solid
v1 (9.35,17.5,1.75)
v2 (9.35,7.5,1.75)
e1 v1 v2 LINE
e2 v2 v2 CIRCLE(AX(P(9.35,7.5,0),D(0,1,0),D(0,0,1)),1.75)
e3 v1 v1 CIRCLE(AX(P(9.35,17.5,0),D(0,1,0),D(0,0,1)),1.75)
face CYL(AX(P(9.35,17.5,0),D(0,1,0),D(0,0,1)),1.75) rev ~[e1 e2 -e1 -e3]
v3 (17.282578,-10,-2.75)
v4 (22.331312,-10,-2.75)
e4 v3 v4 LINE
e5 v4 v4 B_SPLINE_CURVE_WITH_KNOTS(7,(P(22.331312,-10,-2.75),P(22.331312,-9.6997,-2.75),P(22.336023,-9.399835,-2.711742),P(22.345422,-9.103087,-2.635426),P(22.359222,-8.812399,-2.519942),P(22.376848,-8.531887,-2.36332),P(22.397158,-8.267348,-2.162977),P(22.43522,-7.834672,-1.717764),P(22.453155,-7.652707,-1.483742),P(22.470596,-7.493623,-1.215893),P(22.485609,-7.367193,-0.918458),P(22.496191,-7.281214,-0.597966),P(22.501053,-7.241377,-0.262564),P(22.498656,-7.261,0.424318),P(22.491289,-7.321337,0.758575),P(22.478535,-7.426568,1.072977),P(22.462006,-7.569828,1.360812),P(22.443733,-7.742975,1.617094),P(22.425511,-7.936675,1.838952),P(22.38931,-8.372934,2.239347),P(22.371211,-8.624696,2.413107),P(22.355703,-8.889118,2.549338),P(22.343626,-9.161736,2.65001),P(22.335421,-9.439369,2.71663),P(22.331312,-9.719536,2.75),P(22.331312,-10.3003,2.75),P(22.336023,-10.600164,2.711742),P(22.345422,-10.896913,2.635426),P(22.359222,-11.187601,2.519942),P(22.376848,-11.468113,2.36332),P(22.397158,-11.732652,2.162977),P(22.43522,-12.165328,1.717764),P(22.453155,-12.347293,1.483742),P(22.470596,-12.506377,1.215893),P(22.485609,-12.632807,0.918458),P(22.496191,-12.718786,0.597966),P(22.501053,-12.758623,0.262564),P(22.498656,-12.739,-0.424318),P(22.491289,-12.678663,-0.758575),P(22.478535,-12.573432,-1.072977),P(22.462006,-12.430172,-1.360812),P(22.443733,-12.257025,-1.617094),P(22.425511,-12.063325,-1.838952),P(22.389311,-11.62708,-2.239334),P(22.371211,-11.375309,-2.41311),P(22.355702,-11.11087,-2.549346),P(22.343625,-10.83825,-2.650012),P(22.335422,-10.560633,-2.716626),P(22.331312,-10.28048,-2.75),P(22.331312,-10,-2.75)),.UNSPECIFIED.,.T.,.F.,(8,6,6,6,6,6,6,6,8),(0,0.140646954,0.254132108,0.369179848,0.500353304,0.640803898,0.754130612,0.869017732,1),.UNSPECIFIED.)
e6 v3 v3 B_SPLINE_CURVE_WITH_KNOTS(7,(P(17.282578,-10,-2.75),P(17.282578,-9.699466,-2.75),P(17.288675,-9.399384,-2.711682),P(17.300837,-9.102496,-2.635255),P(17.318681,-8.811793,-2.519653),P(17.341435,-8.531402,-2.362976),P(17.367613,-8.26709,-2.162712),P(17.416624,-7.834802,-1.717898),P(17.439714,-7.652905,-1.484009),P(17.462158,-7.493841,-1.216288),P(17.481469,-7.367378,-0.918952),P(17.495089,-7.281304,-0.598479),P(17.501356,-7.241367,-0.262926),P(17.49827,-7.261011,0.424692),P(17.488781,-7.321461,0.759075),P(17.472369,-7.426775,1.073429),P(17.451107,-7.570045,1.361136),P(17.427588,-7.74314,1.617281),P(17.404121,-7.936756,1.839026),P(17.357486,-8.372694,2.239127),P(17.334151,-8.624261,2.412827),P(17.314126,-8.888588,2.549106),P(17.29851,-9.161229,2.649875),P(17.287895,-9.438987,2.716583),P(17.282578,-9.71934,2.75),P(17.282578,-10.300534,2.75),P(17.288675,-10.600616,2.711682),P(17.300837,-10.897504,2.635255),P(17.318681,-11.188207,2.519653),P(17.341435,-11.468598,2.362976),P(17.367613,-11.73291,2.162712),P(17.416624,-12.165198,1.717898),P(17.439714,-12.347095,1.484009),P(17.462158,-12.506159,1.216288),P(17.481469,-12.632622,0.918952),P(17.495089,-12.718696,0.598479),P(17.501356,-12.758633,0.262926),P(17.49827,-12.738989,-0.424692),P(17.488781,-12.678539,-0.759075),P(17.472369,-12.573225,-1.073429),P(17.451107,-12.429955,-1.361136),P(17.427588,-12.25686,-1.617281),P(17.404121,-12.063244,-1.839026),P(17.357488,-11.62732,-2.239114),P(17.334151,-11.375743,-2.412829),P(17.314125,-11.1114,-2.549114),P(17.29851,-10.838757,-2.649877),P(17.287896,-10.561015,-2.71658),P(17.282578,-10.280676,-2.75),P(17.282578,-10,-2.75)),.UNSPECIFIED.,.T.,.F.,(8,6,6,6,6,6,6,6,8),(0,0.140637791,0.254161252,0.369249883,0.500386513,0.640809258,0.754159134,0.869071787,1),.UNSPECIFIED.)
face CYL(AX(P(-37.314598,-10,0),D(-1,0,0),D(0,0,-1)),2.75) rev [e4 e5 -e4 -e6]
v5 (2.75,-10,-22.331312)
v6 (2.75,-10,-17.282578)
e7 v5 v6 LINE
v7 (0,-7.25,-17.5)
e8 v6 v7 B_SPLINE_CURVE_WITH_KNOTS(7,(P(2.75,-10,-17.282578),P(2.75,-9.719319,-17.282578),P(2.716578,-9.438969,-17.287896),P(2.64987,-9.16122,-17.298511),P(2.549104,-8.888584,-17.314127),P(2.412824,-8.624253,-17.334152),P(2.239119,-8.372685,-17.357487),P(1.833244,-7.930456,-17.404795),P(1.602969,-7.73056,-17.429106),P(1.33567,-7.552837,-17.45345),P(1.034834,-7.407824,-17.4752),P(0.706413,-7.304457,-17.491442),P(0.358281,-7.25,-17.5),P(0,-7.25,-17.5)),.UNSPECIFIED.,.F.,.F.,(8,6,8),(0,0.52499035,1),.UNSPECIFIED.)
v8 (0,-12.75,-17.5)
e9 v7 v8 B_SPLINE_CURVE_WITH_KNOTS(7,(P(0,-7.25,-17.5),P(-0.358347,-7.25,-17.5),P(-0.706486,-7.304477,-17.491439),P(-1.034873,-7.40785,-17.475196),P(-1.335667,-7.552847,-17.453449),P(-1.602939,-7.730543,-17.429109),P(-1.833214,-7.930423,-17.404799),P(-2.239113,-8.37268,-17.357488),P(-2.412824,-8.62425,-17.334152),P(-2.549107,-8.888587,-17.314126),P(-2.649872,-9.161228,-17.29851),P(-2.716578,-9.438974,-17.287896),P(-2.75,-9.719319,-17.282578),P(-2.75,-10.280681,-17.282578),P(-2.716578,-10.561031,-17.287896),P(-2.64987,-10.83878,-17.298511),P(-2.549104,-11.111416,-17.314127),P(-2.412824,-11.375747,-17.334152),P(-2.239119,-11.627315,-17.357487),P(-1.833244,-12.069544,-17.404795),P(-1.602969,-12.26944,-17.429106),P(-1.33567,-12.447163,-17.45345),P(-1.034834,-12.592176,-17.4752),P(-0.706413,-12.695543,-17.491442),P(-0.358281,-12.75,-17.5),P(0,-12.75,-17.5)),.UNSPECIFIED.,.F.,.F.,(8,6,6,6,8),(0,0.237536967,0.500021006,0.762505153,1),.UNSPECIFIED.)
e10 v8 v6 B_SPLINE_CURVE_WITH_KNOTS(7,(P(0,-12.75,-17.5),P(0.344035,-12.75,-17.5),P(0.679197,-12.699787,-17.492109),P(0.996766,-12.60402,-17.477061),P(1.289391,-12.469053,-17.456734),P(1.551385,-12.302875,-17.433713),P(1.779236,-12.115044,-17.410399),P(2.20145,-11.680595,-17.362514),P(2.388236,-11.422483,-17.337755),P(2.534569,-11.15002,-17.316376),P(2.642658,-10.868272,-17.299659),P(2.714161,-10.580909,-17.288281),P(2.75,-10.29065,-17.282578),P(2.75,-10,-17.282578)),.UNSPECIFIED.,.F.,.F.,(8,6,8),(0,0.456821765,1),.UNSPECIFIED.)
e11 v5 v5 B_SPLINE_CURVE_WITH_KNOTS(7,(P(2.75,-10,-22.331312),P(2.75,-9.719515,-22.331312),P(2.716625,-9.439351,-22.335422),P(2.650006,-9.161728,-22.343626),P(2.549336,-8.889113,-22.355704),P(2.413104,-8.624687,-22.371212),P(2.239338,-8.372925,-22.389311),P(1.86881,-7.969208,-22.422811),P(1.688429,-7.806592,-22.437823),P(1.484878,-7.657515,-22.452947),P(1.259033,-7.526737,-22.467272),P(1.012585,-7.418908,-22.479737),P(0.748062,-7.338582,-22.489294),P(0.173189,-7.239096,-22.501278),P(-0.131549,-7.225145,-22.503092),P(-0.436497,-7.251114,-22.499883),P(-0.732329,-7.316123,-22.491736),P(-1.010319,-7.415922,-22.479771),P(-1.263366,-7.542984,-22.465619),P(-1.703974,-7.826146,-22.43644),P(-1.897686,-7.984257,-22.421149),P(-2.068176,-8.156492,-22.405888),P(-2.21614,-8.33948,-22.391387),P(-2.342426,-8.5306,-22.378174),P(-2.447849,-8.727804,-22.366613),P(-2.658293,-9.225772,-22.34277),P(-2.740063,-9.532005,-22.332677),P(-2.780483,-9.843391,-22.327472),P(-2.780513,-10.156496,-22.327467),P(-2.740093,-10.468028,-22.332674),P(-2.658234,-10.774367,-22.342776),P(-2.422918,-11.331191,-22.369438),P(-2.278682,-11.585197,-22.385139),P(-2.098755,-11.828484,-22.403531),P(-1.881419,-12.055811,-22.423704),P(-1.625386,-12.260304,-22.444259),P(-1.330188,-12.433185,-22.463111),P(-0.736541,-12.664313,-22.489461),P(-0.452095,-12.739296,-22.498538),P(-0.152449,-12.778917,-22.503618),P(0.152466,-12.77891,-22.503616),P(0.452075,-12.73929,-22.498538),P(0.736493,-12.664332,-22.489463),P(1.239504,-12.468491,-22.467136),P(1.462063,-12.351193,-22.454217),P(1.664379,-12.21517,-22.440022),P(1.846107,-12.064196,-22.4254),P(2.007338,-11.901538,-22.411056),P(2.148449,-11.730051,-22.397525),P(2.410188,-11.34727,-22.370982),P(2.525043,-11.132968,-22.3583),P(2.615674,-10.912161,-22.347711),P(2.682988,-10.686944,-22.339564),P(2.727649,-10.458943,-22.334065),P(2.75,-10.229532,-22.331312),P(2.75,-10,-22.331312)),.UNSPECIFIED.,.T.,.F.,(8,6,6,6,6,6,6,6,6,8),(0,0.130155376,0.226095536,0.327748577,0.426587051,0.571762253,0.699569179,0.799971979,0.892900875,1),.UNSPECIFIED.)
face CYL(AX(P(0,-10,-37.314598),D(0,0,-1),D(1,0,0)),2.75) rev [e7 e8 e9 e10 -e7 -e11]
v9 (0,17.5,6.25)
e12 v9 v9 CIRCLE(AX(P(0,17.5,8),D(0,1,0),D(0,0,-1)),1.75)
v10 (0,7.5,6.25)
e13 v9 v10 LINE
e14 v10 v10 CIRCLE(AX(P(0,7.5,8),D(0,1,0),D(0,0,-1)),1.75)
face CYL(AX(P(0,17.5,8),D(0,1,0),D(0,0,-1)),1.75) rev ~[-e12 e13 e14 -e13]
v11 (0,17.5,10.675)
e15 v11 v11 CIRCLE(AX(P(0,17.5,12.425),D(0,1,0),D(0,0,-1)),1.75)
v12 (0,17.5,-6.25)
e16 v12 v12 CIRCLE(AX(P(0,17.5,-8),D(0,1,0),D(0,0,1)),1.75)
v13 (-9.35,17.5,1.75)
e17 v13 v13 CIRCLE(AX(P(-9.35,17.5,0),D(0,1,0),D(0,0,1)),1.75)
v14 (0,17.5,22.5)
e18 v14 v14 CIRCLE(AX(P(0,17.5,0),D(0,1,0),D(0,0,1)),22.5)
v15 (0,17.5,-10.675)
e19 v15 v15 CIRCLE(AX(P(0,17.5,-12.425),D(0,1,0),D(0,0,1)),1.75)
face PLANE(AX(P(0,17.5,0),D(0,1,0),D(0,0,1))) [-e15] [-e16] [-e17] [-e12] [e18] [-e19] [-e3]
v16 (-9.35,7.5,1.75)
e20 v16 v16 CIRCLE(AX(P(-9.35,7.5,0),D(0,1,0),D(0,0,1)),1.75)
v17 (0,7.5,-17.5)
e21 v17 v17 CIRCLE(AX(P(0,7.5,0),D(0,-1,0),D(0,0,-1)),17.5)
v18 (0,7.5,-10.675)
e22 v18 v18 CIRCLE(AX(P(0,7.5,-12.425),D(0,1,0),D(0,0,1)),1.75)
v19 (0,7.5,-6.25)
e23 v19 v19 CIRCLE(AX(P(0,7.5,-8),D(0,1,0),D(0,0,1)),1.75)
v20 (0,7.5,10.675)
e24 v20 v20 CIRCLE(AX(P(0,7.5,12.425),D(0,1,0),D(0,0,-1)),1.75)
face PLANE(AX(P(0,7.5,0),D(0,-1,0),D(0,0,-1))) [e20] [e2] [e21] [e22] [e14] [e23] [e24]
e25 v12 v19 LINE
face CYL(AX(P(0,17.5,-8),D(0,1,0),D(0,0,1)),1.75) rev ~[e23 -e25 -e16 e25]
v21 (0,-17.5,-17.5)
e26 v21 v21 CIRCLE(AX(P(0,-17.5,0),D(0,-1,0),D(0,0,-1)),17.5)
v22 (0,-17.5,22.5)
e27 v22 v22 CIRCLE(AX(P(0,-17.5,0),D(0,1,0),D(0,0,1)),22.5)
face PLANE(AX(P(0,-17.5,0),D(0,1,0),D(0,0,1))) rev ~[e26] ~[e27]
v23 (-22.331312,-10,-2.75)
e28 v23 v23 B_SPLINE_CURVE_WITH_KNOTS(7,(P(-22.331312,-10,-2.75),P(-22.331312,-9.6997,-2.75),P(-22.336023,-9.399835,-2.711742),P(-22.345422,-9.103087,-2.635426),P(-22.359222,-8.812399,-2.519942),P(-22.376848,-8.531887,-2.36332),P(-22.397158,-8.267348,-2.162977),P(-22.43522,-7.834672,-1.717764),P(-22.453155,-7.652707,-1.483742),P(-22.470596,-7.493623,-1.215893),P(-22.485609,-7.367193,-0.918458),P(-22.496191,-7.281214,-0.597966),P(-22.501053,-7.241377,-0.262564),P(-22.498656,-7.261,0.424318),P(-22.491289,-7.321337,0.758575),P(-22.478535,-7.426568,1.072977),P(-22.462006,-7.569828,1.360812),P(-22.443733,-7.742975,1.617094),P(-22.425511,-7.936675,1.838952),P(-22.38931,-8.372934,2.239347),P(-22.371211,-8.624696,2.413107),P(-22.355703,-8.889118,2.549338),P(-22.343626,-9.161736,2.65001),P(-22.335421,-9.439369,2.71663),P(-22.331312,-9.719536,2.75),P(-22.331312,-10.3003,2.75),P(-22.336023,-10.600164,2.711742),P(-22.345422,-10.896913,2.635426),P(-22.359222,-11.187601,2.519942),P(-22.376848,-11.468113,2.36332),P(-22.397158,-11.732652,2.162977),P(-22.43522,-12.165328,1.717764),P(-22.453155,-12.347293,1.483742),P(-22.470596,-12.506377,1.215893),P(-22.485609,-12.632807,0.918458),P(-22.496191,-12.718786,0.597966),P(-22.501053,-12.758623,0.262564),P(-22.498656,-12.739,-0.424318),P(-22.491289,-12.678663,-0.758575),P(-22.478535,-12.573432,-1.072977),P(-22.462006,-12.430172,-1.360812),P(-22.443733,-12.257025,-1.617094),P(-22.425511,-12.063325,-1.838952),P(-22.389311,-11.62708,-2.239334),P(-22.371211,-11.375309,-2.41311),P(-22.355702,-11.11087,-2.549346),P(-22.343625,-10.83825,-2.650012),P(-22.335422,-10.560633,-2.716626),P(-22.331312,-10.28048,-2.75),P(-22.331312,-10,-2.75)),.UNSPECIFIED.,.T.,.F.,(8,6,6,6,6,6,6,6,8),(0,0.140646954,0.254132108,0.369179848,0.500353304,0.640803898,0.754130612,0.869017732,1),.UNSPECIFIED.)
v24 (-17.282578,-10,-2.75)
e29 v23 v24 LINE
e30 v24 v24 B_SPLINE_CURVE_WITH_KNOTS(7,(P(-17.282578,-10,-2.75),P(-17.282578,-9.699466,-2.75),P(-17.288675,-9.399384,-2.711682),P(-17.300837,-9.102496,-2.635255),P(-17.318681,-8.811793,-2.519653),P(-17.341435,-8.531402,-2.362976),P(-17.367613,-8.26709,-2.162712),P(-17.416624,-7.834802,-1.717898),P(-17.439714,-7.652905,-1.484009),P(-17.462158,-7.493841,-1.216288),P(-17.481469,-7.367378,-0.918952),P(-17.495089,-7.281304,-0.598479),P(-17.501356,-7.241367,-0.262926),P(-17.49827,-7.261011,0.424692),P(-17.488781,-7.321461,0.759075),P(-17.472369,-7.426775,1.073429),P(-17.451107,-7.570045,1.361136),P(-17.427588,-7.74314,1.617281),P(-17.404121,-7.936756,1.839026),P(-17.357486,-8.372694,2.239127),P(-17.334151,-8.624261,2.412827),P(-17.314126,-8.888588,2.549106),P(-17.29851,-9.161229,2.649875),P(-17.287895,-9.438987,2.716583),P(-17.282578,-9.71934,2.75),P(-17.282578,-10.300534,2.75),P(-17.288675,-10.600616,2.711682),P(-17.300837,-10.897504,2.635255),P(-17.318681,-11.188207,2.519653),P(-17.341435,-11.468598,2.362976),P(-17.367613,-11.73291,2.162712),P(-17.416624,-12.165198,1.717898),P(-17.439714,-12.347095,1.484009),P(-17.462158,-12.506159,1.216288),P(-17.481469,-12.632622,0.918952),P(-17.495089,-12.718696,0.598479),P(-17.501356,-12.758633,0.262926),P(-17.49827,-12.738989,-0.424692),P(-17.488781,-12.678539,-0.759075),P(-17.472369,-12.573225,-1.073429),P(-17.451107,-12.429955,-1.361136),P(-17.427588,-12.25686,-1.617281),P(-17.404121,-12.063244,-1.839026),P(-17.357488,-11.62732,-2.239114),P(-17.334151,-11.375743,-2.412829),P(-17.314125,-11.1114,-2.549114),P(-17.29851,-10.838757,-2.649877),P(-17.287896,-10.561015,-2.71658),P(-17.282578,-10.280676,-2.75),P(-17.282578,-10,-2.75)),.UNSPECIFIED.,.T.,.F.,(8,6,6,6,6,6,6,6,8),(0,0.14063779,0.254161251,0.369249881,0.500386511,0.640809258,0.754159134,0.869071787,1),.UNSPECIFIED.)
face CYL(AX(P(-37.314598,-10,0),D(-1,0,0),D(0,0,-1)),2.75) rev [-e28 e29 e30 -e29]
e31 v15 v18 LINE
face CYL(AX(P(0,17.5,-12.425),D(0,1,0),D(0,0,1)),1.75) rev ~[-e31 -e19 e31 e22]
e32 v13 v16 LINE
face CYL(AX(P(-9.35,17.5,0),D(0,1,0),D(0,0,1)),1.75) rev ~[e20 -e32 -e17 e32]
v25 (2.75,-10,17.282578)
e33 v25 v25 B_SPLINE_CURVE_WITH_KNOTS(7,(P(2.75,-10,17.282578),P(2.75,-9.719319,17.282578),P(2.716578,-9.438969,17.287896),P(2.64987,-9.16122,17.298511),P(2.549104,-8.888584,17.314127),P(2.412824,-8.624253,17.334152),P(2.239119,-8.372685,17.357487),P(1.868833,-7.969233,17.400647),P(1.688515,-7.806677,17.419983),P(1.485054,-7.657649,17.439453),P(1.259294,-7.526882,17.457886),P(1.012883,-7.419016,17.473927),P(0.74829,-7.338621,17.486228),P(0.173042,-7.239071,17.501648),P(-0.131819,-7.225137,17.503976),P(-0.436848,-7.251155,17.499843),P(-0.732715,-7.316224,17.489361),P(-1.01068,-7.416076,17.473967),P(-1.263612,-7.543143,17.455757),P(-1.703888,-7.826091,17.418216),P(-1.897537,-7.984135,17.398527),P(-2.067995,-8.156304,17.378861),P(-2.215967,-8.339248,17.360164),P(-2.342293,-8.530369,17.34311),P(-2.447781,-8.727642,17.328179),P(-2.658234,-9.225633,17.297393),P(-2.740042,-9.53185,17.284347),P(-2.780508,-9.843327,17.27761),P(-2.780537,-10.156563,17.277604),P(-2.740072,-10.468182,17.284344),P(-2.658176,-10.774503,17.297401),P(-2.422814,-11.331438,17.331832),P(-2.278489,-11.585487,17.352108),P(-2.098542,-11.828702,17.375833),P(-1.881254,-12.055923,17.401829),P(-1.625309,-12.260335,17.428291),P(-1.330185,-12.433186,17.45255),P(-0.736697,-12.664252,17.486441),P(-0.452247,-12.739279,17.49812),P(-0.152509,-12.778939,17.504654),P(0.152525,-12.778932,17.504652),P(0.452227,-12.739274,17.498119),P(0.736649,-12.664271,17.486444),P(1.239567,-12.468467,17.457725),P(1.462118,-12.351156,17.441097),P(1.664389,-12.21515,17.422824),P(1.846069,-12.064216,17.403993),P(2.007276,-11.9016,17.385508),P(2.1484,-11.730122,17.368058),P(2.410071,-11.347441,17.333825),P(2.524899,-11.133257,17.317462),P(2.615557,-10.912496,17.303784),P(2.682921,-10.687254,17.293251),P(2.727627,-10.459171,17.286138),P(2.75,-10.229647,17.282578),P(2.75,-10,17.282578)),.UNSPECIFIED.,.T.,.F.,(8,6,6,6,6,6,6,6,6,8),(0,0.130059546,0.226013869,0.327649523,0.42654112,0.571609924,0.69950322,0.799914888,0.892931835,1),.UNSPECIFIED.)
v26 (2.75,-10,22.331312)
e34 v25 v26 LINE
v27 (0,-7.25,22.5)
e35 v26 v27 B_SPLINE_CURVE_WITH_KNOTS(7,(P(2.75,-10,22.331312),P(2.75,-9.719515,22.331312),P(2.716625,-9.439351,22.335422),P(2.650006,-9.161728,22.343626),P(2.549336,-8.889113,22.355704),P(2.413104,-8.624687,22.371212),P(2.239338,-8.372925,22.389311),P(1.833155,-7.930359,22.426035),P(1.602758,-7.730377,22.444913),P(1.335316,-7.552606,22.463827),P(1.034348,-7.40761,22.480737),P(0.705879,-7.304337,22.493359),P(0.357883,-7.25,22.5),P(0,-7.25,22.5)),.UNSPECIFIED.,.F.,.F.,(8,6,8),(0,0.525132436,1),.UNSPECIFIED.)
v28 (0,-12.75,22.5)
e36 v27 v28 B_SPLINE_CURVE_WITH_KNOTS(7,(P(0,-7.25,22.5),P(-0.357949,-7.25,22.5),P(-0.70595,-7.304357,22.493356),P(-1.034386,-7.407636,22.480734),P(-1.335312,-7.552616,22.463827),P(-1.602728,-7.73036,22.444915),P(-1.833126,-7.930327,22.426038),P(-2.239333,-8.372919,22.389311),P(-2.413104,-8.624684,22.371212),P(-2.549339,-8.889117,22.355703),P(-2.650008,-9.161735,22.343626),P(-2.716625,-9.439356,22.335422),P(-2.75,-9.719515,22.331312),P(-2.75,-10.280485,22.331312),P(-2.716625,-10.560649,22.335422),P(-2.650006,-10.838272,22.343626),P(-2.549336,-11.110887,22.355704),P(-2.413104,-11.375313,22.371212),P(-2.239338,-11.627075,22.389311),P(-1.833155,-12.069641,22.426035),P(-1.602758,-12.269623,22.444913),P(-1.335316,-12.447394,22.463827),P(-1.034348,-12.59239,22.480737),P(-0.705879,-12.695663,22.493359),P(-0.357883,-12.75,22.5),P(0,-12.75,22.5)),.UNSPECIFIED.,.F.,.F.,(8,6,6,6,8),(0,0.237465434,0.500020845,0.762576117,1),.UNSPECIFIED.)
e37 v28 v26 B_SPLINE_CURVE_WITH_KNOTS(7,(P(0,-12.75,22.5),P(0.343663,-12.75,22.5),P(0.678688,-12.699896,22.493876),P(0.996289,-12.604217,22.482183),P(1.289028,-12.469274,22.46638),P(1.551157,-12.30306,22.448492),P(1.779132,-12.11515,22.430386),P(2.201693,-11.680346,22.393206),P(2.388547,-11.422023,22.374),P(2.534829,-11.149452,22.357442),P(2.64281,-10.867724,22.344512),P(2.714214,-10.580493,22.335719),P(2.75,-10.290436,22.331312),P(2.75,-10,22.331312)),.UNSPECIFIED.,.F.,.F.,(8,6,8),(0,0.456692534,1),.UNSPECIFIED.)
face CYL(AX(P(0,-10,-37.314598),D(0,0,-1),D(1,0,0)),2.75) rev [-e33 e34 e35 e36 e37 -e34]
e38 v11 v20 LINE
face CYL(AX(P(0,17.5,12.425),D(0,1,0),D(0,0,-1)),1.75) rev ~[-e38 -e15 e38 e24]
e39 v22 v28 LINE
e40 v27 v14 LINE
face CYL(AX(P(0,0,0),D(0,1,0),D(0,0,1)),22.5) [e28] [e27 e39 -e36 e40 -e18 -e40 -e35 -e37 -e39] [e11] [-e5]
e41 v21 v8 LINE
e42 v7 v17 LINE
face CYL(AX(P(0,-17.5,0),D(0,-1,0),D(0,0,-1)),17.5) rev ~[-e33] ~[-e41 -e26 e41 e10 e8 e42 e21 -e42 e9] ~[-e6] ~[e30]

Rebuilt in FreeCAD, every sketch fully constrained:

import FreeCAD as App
import Part
import Sketcher
Q = App.Units.Quantity

doc = App.newDocument("Part")
body = doc.addObject("PartDesign::Body", "Body")

sketch1 = body.newObject("Sketcher::SketchObject", "Sketch")
sketch1.AttachmentSupport = (doc.getObject("XZ_Plane"), [""])
sketch1.MapMode = "FlatFace"
sketch1.addGeometry(Part.Circle(App.Vector(0, 0, 0), App.Vector(0, 0, 1), 22.5), False)
sketch1.addConstraint([
    Sketcher.Constraint("Coincident", 0, 3, -1, 1),
    Sketcher.Constraint("Diameter", 0, Q("45 mm")),
])
pad1 = body.newObject("PartDesign::Pad", "Pad")
pad1.Profile = sketch1
pad1.Length = 35
pad1.Midplane = True

sketch2 = body.newObject("Sketcher::SketchObject", "Sketch001")
sketch2.AttachmentSupport = (doc.getObject("XZ_Plane"), [""])
sketch2.MapMode = "FlatFace"
sketch2.AttachmentOffset = App.Placement(App.Vector(0, 0, 17.5), App.Rotation())
sketch2.addGeometry(Part.Circle(App.Vector(0, 0, 0), App.Vector(0, 0, 1), 17.5), False)
sketch2.addConstraint([
    Sketcher.Constraint("Coincident", 0, 3, -1, 1),
    Sketcher.Constraint("Diameter", 0, Q("35 mm")),
])
pocket1 = body.newObject("PartDesign::Pocket", "Pocket")
pocket1.Profile = sketch2
pocket1.Length = 25

sketch3 = body.newObject("Sketcher::SketchObject", "Sketch002")
sketch3.AttachmentSupport = (doc.getObject("YZ_Plane"), [""])
sketch3.MapMode = "FlatFace"
sketch3.addGeometry(Part.Circle(App.Vector(-10, 0, 0), App.Vector(0, 0, 1), 2.75), False)
sketch3.addConstraint([
    Sketcher.Constraint("PointOnObject", 0, 3, -1),
    Sketcher.Constraint("Diameter", 0, Q("5.5 mm")),
    Sketcher.Constraint("DistanceX", 0, 3, -1, 1, Q("10 mm")),
])
pocket2 = body.newObject("PartDesign::Pocket", "Pocket001")
pocket2.Profile = sketch3
pocket2.Type = "ThroughAll"
pocket2.Midplane = True

sketch4 = body.newObject("Sketcher::SketchObject", "Sketch003")
sketch4.AttachmentSupport = (doc.getObject("XY_Plane"), [""])
sketch4.MapMode = "FlatFace"
sketch4.addGeometry(Part.Circle(App.Vector(0, -10, 0), App.Vector(0, 0, 1), 2.75), False)
sketch4.addConstraint([
    Sketcher.Constraint("PointOnObject", 0, 3, -2),
    Sketcher.Constraint("Diameter", 0, Q("5.5 mm")),
    Sketcher.Constraint("DistanceY", 0, 3, -1, 1, Q("10 mm")),
])
pocket3 = body.newObject("PartDesign::Pocket", "Pocket002")
pocket3.Profile = sketch4
pocket3.Type = "ThroughAll"
pocket3.Midplane = True

sketch5 = body.newObject("Sketcher::SketchObject", "Sketch004")
sketch5.AttachmentSupport = (doc.getObject("XZ_Plane"), [""])
sketch5.MapMode = "FlatFace"
sketch5.AttachmentOffset = App.Placement(App.Vector(0, 0, -17.5), App.Rotation())
sketch5.addGeometry([
    Part.Circle(App.Vector(0, -12.425, 0), App.Vector(0, 0, 1), 1.75),
    Part.Circle(App.Vector(0, -8, 0), App.Vector(0, 0, 1), 1.75),
    Part.Circle(App.Vector(0, 8, 0), App.Vector(0, 0, 1), 1.75),
    Part.Circle(App.Vector(0, 12.425, 0), App.Vector(0, 0, 1), 1.75),
    Part.Circle(App.Vector(-9.35, 0, 0), App.Vector(0, 0, 1), 1.75),
    Part.Circle(App.Vector(9.35, 0, 0), App.Vector(0, 0, 1), 1.75),
], False)
sketch5.addConstraint([
    Sketcher.Constraint("Equal", 0, 1),
    Sketcher.Constraint("Equal", 1, 2),
    Sketcher.Constraint("Equal", 2, 3),
    Sketcher.Constraint("Equal", 3, 4),
    Sketcher.Constraint("Equal", 4, 5),
    Sketcher.Constraint("Symmetric", 1, 3, 2, 3, -1, 1),
    Sketcher.Constraint("Symmetric", 0, 3, 3, 3, -1, 1),
    Sketcher.Constraint("Symmetric", 4, 3, 5, 3, -1, 1),
    Sketcher.Constraint("PointOnObject", 0, 3, -2),
    Sketcher.Constraint("PointOnObject", 1, 3, -2),
    Sketcher.Constraint("PointOnObject", 4, 3, -1),
    Sketcher.Constraint("Diameter", 0, Q("3.5 mm")),
    Sketcher.Constraint("DistanceY", 1, 3, -1, 1, Q("8 mm")),
    Sketcher.Constraint("DistanceX", 4, 3, 5, 3, Q("18.7 mm")),
    Sketcher.Constraint("DistanceY", 0, 3, 3, 3, Q("24.85 mm")),
])
pocket4 = body.newObject("PartDesign::Pocket", "Pocket003")
pocket4.Profile = sketch5
pocket4.Length = 10
pocket4.Reversed = True

doc.recompute()
